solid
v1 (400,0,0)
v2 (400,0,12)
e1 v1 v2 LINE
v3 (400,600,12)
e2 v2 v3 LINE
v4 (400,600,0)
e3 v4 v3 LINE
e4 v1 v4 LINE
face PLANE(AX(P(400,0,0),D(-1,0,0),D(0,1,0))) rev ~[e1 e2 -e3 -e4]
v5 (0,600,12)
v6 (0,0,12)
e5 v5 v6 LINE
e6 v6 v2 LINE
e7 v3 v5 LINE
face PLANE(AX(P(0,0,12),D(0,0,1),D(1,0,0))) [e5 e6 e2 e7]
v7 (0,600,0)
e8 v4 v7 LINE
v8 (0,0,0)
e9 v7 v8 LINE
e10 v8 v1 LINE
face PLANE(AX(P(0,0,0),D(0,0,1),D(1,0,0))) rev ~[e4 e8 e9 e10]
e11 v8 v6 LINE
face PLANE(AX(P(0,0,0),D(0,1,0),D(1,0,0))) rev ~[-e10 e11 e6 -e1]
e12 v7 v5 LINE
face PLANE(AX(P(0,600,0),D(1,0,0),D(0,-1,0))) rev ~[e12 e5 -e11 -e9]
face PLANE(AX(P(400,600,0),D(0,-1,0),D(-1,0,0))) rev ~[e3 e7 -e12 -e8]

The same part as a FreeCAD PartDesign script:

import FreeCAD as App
import Part
import Sketcher
from FreeCAD import Vector

doc = App.newDocument("Part")
body = doc.addObject("PartDesign::Body", "Body")

sketch1 = body.newObject("Sketcher::SketchObject", "Sketch")
sketch1.AttachmentSupport = (doc.getObject("XY_Plane"), [""])
sketch1.MapMode = "FlatFace"
sketch1.addGeometry([
    Part.LineSegment(Vector(0, 600, 0), Vector(0, 0, 0)),
    Part.LineSegment(Vector(0, 0, 0), Vector(400, 0, 0)),
    Part.LineSegment(Vector(400, 0, 0), Vector(400, 600, 0)),
    Part.LineSegment(Vector(400, 600, 0), Vector(0, 600, 0)),
], False)
sketch1.addConstraint([
    Sketcher.Constraint("Coincident", 0, 2, 1, 1),
    Sketcher.Constraint("Coincident", 1, 2, 2, 1),
    Sketcher.Constraint("Coincident", 2, 2, 3, 1),
    Sketcher.Constraint("Coincident", 3, 2, 0, 1),
    Sketcher.Constraint("Vertical", 0),
    Sketcher.Constraint("Horizontal", 1),
    Sketcher.Constraint("Vertical", 2),
    Sketcher.Constraint("Horizontal", 3),
    Sketcher.Constraint("Coincident", 0, 2, -1, 1),
    Sketcher.Constraint("DistanceX", 1, 1, 1, 2, 400.0),
    Sketcher.Constraint("DistanceY", 0, 2, 0, 1, 600.0),
])
pad1 = body.newObject("PartDesign::Pad", "Pad")
pad1.Profile = sketch1
pad1.Length = 12

doc.recompute()
